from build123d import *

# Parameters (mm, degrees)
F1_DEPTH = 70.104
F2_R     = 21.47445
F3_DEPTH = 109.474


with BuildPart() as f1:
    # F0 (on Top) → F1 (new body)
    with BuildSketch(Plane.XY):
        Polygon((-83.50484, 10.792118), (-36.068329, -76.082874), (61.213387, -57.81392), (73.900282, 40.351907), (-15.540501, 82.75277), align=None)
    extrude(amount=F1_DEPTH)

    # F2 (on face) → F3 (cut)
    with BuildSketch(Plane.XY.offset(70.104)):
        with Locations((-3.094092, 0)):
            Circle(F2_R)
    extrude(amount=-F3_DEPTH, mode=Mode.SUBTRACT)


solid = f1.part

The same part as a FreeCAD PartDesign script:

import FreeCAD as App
import Part
import Sketcher

V = App.Vector


def add_polygon(sketch, points):
    """Adds a closed chain of lines whose ends are joined by coincident constraints."""
    first, n = sketch.GeometryCount, len(points)
    for a, b in zip(points, points[1:] + points[:1]):
        sketch.addGeometry(Part.LineSegment(App.Vector(*a, 0), App.Vector(*b, 0)), False)
    for i in range(n):
        sketch.addConstraint(Sketcher.Constraint("Coincident", first + i, 2, first + (i + 1) % n, 1))

doc = App.newDocument("Part")
params = doc.addObject("Spreadsheet::Sheet", "Params")
for row, (alias, value) in enumerate([
    ("pad1_length", "2.76 in"),
    ("pocket1_length", "4.31 in"),
], start=1):
    params.set(f"A{row}", alias)
    params.set(f"B{row}", "=" + value)
    params.setAlias(f"B{row}", alias)

body = doc.addObject("PartDesign::Body", "Body")

sketch1 = body.newObject("Sketcher::SketchObject", "Sketch")
sketch1.AttachmentSupport = (doc.getObject("XY_Plane"), [""])
sketch1.MapMode = "FlatFace"
add_polygon(sketch1, [(-83.50484, 10.792118), (-36.068329, -76.082874), (61.213387, -57.81392), (73.900282, 40.351907), (-15.540501, 82.75277)])
sketch1.addConstraint(Sketcher.Constraint("Equal", 0, 1))
sketch1.addConstraint(Sketcher.Constraint("Equal", 1, 2))
sketch1.addConstraint(Sketcher.Constraint("Equal", 2, 3))
sketch1.addConstraint(Sketcher.Constraint("Equal", 3, 4))
sketch1.addConstraint(Sketcher.Constraint("DistanceX", 3, 2, -1, 1, 15.540501))
sketch1.addConstraint(Sketcher.Constraint("DistanceX", 0, 2, -1, 1, 36.068329))
sketch1.addConstraint(Sketcher.Constraint("DistanceY", 1, 2, -1, 1, 57.81392))
sketch1.addConstraint(Sketcher.Constraint("DistanceY", -1, 1, 3, 2, 82.75277))
sketch1.addConstraint(Sketcher.Constraint("DistanceX", 4, 2, -1, 1, 83.50484))
sketch1.addConstraint(Sketcher.Constraint("DistanceX", 0, 2, 2, 2, 109.968611))
pad1 = body.newObject("PartDesign::Pad", "Pad")
pad1.Profile = sketch1
pad1.setExpression("Length", "Params.pad1_length")

sketch2 = body.newObject("Sketcher::SketchObject", "Sketch001")
sketch2.AttachmentSupport = (doc.getObject("XY_Plane"), [""])
sketch2.MapMode = "FlatFace"
sketch2.AttachmentOffset = App.Placement(V(0, 0, 2.76 * 25.4), App.Rotation())
sketch2.addGeometry(Part.Circle(V(-3.094092, 0, 0), V(0, 0, 1), 21.47445), False)
sketch2.addConstraint(Sketcher.Constraint("PointOnObject", 0, 3, -1))
sketch2.addConstraint(Sketcher.Constraint("Diameter", 0, 42.9489))
sketch2.addConstraint(Sketcher.Constraint("DistanceX", 0, 3, -1, 1, 3.094092))
pocket1 = body.newObject("PartDesign::Pocket", "Pocket")
pocket1.Profile = sketch2
pocket1.setExpression("Length", "Params.pocket1_length")

doc.recompute()
